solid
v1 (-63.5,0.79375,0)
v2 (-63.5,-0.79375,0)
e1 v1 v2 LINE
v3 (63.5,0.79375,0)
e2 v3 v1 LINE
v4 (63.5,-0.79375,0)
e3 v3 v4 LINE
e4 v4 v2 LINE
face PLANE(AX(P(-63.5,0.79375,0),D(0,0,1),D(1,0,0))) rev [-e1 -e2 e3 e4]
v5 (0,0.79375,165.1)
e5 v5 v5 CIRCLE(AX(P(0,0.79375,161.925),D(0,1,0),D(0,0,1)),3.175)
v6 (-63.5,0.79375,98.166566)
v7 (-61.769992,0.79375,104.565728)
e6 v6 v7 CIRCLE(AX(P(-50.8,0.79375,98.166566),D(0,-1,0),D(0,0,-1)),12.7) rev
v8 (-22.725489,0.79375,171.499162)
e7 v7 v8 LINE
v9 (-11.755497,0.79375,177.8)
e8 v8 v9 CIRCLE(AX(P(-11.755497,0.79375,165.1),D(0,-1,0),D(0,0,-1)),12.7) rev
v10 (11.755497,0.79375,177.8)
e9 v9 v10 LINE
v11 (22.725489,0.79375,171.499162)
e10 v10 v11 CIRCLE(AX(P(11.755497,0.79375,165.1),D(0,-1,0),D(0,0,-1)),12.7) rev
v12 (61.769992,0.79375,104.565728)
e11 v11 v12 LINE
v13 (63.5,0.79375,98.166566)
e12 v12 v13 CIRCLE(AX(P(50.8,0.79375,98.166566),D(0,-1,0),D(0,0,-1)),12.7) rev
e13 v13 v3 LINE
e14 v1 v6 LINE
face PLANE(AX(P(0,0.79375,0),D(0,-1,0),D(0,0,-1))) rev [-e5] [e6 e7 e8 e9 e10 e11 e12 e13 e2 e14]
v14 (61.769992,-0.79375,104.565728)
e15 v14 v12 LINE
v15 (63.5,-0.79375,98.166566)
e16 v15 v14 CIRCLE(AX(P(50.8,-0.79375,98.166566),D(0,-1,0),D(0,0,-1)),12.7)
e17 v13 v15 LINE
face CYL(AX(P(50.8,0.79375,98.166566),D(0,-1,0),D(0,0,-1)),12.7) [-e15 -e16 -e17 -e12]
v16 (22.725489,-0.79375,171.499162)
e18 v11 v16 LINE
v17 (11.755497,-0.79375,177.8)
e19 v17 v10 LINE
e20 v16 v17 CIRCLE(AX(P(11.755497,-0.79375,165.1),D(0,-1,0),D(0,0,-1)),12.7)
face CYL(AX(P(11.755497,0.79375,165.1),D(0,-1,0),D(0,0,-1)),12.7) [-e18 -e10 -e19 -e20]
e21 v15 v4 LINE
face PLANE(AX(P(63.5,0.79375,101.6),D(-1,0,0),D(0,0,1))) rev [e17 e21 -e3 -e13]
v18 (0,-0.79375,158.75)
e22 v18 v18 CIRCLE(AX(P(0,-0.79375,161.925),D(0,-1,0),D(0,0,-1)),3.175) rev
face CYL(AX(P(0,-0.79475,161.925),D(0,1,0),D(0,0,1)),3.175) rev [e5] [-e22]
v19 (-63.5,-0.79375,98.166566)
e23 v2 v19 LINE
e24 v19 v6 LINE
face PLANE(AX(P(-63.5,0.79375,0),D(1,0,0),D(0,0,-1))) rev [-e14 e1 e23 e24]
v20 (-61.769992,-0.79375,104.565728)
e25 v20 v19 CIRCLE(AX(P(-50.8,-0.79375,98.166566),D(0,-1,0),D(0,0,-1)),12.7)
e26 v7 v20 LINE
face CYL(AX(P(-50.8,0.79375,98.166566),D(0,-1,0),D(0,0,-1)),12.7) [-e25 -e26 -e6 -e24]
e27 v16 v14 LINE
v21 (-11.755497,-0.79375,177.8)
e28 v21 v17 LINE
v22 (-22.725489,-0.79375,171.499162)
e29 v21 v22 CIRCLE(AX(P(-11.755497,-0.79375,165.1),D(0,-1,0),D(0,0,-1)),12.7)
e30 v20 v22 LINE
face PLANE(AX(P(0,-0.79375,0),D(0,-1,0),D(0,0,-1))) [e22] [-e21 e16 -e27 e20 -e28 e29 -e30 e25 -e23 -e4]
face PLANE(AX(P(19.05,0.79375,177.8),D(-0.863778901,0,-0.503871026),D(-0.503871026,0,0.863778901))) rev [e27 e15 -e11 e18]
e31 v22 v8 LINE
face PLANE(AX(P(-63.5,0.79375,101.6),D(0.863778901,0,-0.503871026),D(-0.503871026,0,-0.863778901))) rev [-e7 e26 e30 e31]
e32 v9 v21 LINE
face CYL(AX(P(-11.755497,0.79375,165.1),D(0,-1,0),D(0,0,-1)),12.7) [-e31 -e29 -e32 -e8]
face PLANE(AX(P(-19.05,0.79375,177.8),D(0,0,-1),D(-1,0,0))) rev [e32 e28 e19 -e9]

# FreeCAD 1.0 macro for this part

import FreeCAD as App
import Part
import Sketcher
Q = App.Units.Quantity


def edges_at(feature, points):
    """Names of the edges that pass closest to the given points."""
    edges = feature.Shape.Edges
    near = lambda p: min(range(len(edges)), key=lambda i: edges[i].distToShape(Part.Vertex(*p))[0])
    return sorted({f"Edge{near(p) + 1}" for p in points})


def add_polygon(sketch, points):
    """Adds a closed chain of lines whose ends are joined by coincident constraints."""
    first, n = sketch.GeometryCount, len(points)
    for a, b in zip(points, points[1:] + points[:1]):
        sketch.addGeometry(Part.LineSegment(App.Vector(*a, 0), App.Vector(*b, 0)), False)
    for i in range(n):
        sketch.addConstraint(Sketcher.Constraint("Coincident", first + i, 2, first + (i + 1) % n, 1))

doc = App.newDocument("Part")
params = doc.addObject("Spreadsheet::Sheet", "Params")
for row, (alias, value) in enumerate([
    ("sketch1_width", "5 in"),
    ("sketch1_height", "4 in"),
    ("sketch1_width2", "1.5 in"),
    ("pad1_length", "0.0625 in"),
    ("fillet_radius", "0.5 in"),
    ("sketch2_diameter", "0.25 in"),
], start=1):
    params.set(f"A{row}", alias)
    params.set(f"B{row}", "=" + value)
    params.setAlias(f"B{row}", alias)

body = doc.addObject("PartDesign::Body", "Body")

# Sketch on XZ plane
sketch1 = body.newObject("Sketcher::SketchObject", "Sketch")
sketch1.AttachmentSupport = (doc.getObject("XZ_Plane"), [""])
sketch1.MapMode = "FlatFace"
add_polygon(sketch1, [(63.5, 0), (-63.5, 0), (-63.5, 101.6), (-19.05, 177.8), (19.05, 177.8), (63.5, 101.6)])  # lines 0-5
sketch1.addConstraint(Sketcher.Constraint("Horizontal", 0))
sketch1.addConstraint(Sketcher.Constraint("Vertical", 1))
sketch1.addConstraint(Sketcher.Constraint("Horizontal", 3))
sketch1.addConstraint(Sketcher.Constraint("Vertical", 5))
sketch1.addConstraint(Sketcher.Constraint("Symmetric", 0, 2, 5, 2, -1, 1))
sketch1.addConstraint(Sketcher.Constraint("Horizontal", 1, 2, 4, 2))
sketch1.addConstraint(Sketcher.Constraint("Equal", 2, 4))
sketch1.addConstraint(Sketcher.Constraint("DistanceX", 0, 2, 0, 1, Q("5 in")))
sketch1.addConstraint(Sketcher.Constraint("DistanceY", 1, 1, 1, 2, Q("4 in")))
sketch1.addConstraint(Sketcher.Constraint("DistanceX", 3, 1, 3, 2, Q("1.5 in")))
sketch1.addConstraint(Sketcher.Constraint("DistanceY", -1, 1, 2, 2, Q("7 in")))
sketch1.setExpression("Constraints[13]", "Params.sketch1_width")
sketch1.setExpression("Constraints[14]", "Params.sketch1_height")
sketch1.setExpression("Constraints[15]", "Params.sketch1_width2")
pad1 = body.newObject("PartDesign::Pad", "Pad")
pad1.Profile = sketch1
pad1.setExpression("Length", "Params.pad1_length")
pad1.Midplane = True
doc.recompute()

fillet = body.newObject("PartDesign::Fillet", "Fillet")
fillet.Base = (pad1, edges_at(pad1, [
    (19.05, 0, 177.8),
    (-19.05, 0, 177.8),
    (-63.5, 0, 101.6),
    (63.5, 0, 101.6),
]))
fillet.setExpression("Radius", "Params.fillet_radius")

# Sketch on XZ plane
sketch2 = body.newObject("Sketcher::SketchObject", "Sketch001")
sketch2.AttachmentSupport = (doc.getObject("XZ_Plane"), [""])
sketch2.MapMode = "FlatFace"
sketch2.AttachmentOffset = App.Placement(App.Vector(0, 0, -0.03125 * 25.4), App.Rotation())
sketch2.addGeometry(Part.Circle(App.Vector(0, 161.925, 0), App.Vector(0, 0, 1), 3.175), False)
sketch2.addConstraint(Sketcher.Constraint("PointOnObject", 0, 3, -2))
sketch2.addConstraint(Sketcher.Constraint("Diameter", 0, Q("0.25 in")))
sketch2.addConstraint(Sketcher.Constraint("DistanceY", -1, 1, 0, 3, Q("6.375 in")))
sketch2.setExpression("Constraints[1]", "Params.sketch2_diameter")
pocket1 = body.newObject("PartDesign::Pocket", "Pocket")
pocket1.Profile = sketch2
pocket1.Type = "UpToFirst"
pocket1.Reversed = True

doc.recompute()
